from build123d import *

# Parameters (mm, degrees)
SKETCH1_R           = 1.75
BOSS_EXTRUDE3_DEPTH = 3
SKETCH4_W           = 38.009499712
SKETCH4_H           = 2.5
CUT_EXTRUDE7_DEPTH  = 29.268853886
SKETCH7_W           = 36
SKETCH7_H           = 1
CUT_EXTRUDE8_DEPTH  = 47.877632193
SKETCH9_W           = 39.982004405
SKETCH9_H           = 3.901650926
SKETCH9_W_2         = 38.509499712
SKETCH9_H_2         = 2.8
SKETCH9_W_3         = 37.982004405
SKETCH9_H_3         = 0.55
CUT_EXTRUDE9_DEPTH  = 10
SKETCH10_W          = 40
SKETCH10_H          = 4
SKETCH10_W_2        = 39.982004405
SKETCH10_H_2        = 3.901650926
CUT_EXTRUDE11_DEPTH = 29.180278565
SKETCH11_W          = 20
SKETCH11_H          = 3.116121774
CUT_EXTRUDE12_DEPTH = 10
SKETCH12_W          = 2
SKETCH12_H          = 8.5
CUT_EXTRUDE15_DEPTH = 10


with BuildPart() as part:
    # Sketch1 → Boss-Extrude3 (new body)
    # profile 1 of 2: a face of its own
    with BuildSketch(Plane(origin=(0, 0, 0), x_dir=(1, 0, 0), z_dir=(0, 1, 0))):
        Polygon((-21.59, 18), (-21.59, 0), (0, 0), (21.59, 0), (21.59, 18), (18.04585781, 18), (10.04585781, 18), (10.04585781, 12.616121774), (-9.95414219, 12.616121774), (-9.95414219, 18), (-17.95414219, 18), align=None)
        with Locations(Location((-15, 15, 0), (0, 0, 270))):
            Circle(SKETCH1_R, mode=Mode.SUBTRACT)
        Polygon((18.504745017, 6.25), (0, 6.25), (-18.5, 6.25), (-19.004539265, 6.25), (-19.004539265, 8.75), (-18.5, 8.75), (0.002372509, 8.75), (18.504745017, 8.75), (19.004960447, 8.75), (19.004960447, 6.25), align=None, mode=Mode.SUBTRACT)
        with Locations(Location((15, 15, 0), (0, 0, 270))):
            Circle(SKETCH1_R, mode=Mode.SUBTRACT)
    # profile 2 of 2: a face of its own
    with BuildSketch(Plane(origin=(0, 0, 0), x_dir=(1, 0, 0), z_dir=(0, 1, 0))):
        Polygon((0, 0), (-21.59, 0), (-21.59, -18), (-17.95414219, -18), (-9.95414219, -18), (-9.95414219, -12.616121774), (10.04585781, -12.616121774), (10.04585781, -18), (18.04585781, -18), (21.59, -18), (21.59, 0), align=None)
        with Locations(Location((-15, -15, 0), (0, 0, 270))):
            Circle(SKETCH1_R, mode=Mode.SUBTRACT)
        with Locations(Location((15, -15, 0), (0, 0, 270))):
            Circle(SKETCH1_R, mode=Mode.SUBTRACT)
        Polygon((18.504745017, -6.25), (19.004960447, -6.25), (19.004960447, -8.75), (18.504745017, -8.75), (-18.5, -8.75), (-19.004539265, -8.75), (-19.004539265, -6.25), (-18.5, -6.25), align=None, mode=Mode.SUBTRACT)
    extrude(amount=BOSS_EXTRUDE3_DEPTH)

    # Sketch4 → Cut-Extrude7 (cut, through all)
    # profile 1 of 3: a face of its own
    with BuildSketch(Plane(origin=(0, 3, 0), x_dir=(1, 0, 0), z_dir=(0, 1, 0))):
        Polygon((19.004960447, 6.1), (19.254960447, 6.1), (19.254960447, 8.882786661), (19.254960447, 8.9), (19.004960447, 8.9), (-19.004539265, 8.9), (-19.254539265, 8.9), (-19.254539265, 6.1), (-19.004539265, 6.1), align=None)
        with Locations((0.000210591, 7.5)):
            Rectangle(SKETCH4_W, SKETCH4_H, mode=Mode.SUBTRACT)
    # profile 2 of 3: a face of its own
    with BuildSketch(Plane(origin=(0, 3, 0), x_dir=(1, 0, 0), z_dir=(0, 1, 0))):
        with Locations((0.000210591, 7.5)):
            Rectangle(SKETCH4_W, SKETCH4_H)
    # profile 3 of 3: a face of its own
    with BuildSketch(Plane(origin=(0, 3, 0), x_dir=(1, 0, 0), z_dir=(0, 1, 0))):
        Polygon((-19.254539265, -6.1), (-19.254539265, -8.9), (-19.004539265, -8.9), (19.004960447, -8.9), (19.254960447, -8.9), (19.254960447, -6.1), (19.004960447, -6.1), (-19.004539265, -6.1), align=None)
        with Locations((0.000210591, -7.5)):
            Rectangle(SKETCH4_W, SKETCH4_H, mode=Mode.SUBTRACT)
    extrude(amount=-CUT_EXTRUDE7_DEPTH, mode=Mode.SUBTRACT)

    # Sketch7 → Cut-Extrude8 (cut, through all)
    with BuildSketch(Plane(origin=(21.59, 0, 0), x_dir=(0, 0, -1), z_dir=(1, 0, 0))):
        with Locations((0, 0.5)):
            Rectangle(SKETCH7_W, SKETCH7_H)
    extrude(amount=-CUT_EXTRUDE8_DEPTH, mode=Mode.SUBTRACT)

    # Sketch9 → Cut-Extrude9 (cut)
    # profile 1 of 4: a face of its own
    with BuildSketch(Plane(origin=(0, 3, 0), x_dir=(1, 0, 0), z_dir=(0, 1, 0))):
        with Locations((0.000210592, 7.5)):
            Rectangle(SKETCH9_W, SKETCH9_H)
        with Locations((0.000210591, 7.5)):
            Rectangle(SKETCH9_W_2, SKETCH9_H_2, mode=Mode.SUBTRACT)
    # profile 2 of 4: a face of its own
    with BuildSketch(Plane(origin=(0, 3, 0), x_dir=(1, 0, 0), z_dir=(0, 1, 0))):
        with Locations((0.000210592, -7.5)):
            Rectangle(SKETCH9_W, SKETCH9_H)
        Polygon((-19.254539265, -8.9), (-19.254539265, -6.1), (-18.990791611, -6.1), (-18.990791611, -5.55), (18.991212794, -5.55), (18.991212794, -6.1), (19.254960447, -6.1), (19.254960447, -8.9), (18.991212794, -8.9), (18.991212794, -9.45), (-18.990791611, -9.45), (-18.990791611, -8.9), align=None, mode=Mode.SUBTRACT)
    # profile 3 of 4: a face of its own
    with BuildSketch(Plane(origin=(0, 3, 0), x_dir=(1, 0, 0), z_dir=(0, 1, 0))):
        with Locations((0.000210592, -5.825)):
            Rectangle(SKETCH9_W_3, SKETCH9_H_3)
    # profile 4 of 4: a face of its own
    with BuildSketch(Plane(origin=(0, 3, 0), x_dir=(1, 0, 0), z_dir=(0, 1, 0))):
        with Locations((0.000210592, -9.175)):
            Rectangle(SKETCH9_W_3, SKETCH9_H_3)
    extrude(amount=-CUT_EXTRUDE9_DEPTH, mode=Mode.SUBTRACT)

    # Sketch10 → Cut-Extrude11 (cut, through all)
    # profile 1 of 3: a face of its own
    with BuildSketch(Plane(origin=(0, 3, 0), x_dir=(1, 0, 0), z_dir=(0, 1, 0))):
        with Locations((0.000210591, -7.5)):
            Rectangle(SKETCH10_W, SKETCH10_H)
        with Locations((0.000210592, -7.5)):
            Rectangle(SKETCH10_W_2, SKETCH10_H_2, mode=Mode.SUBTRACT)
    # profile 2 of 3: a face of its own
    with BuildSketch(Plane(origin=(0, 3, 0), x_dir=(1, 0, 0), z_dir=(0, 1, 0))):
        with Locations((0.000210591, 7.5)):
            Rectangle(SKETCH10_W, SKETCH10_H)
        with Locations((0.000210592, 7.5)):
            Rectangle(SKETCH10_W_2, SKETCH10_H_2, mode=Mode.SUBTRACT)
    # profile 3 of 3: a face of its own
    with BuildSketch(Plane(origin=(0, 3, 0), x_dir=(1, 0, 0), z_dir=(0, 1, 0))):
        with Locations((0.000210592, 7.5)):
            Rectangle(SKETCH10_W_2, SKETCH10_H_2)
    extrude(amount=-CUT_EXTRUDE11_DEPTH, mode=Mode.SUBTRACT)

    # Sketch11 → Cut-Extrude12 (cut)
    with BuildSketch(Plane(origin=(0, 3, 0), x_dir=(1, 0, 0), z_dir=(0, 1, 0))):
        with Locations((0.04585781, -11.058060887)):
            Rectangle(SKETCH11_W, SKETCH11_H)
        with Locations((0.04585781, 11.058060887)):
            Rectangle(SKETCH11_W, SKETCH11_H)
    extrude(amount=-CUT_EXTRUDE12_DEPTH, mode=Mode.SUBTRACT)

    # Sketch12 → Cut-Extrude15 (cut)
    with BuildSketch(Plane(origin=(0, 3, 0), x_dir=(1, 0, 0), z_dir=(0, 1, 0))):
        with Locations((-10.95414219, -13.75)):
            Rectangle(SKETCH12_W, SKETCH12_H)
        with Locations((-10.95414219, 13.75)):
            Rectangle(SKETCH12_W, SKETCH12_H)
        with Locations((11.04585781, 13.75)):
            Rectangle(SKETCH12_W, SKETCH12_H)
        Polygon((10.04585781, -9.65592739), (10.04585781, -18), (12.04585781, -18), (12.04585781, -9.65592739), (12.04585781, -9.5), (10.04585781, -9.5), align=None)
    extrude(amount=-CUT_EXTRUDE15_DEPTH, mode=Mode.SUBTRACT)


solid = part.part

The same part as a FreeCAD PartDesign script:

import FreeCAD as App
import Part
import Sketcher

doc = App.newDocument("Part")
params = doc.addObject("Spreadsheet::Sheet", "Params")
for row, (alias, value) in enumerate([
    ("sketch1_diameter", "3.5 mm"),
    ("sketch1_width", "20 mm"),
    ("sketch1_height", "36 mm"),
    ("sketch1_height2", "2.5 mm"),
    ("pad1_length", "3 mm"),
    ("sketch2_height", "2.8 mm"),
    ("sketch2_height2", "2.5 mm"),
    ("pocket1_length", "29.268854 mm"),
    ("sketch3_width", "1 mm"),
    ("sketch3_height", "36 mm"),
    ("sketch4_height", "2.8 mm"),
    ("pocket3_length", "10 mm"),
    ("sketch5_width", "40 mm"),
    ("sketch5_height", "4 mm"),
    ("pocket4_length", "29.180279 mm"),
    ("sketch6_width", "20 mm"),
    ("pocket5_length", "10 mm"),
    ("sketch7_width", "2 mm"),
    ("sketch7_height", "8.5 mm"),
    ("pocket6_length", "10 mm"),
], start=1):
    params.set(f"A{row}", alias)
    params.set(f"B{row}", "=" + value)
    params.setAlias(f"B{row}", alias)

body = doc.addObject("PartDesign::Body", "Body")

# Sketch on XZ plane
sketch1 = body.newObject("Sketcher::SketchObject", "Sketch")
sketch1.AttachmentSupport = (doc.getObject("XZ_Plane"), [""])
sketch1.MapMode = "FlatFace"
sketch1.addGeometry(Part.LineSegment(App.Vector(-21.59, -18, 0), App.Vector(-21.59, 18, 0)), False)
sketch1.addGeometry(Part.LineSegment(App.Vector(-21.59, 18, 0), App.Vector(-9.954142, 18, 0)), False)
sketch1.addGeometry(Part.LineSegment(App.Vector(-9.954142, 18, 0), App.Vector(-9.954142, 12.616122, 0)), False)
sketch1.addGeometry(Part.LineSegment(App.Vector(-9.954142, 12.616122, 0), App.Vector(10.045858, 12.616122, 0)), False)
sketch1.addGeometry(Part.LineSegment(App.Vector(10.045858, 12.616122, 0), App.Vector(10.045858, 18, 0)), False)
sketch1.addGeometry(Part.LineSegment(App.Vector(10.045858, 18, 0), App.Vector(21.59, 18, 0)), False)
sketch1.addGeometry(Part.LineSegment(App.Vector(21.59, 18, 0), App.Vector(21.59, -18, 0)), False)
sketch1.addGeometry(Part.LineSegment(App.Vector(21.59, -18, 0), App.Vector(10.045858, -18, 0)), False)
sketch1.addGeometry(Part.LineSegment(App.Vector(10.045858, -18, 0), App.Vector(10.045858, -12.616122, 0)), False)
sketch1.addGeometry(Part.LineSegment(App.Vector(10.045858, -12.616122, 0), App.Vector(-9.954142, -12.616122, 0)), False)
sketch1.addGeometry(Part.LineSegment(App.Vector(-9.954142, -12.616122, 0), App.Vector(-9.954142, -18, 0)), False)
sketch1.addGeometry(Part.LineSegment(App.Vector(-9.954142, -18, 0), App.Vector(-21.59, -18, 0)), False)
sketch1.addGeometry(Part.LineSegment(App.Vector(19.00496, -6.25, 0), App.Vector(-19.004539, -6.25, 0)), False)
sketch1.addGeometry(Part.LineSegment(App.Vector(-19.004539, -6.25, 0), App.Vector(-19.004539, -8.75, 0)), False)
sketch1.addGeometry(Part.LineSegment(App.Vector(-19.004539, -8.75, 0), App.Vector(19.00496, -8.75, 0)), False)
sketch1.addGeometry(Part.LineSegment(App.Vector(19.00496, -8.75, 0), App.Vector(19.00496, -6.25, 0)), False)
sketch1.addGeometry(Part.Circle(App.Vector(-15, -15, 0), App.Vector(0, 0, 1), 1.75), False)
sketch1.addGeometry(Part.Circle(App.Vector(15, -15, 0), App.Vector(0, 0, 1), 1.75), False)
sketch1.addGeometry(Part.LineSegment(App.Vector(-19.004539, 8.75, 0), App.Vector(-19.004539, 6.25, 0)), False)
sketch1.addGeometry(Part.LineSegment(App.Vector(-19.004539, 6.25, 0), App.Vector(19.00496, 6.25, 0)), False)
sketch1.addGeometry(Part.LineSegment(App.Vector(19.00496, 6.25, 0), App.Vector(19.00496, 8.75, 0)), False)
sketch1.addGeometry(Part.LineSegment(App.Vector(19.00496, 8.75, 0), App.Vector(-19.004539, 8.75, 0)), False)
sketch1.addGeometry(Part.Circle(App.Vector(-15, 15, 0), App.Vector(0, 0, 1), 1.75), False)
sketch1.addGeometry(Part.Circle(App.Vector(15, 15, 0), App.Vector(0, 0, 1), 1.75), False)
sketch1.addConstraint(Sketcher.Constraint("Coincident", 0, 2, 1, 1))
sketch1.addConstraint(Sketcher.Constraint("Coincident", 1, 2, 2, 1))
sketch1.addConstraint(Sketcher.Constraint("Coincident", 2, 2, 3, 1))
sketch1.addConstraint(Sketcher.Constraint("Coincident", 3, 2, 4, 1))
sketch1.addConstraint(Sketcher.Constraint("Coincident", 4, 2, 5, 1))
sketch1.addConstraint(Sketcher.Constraint("Coincident", 5, 2, 6, 1))
sketch1.addConstraint(Sketcher.Constraint("Coincident", 6, 2, 7, 1))
sketch1.addConstraint(Sketcher.Constraint("Coincident", 7, 2, 8, 1))
sketch1.addConstraint(Sketcher.Constraint("Coincident", 8, 2, 9, 1))
sketch1.addConstraint(Sketcher.Constraint("Coincident", 9, 2, 10, 1))
sketch1.addConstraint(Sketcher.Constraint("Coincident", 10, 2, 11, 1))
sketch1.addConstraint(Sketcher.Constraint("Coincident", 11, 2, 0, 1))
sketch1.addConstraint(Sketcher.Constraint("Coincident", 12, 2, 13, 1))
sketch1.addConstraint(Sketcher.Constraint("Coincident", 13, 2, 14, 1))
sketch1.addConstraint(Sketcher.Constraint("Coincident", 14, 2, 15, 1))
sketch1.addConstraint(Sketcher.Constraint("Coincident", 15, 2, 12, 1))
sketch1.addConstraint(Sketcher.Constraint("Coincident", 18, 2, 19, 1))
sketch1.addConstraint(Sketcher.Constraint("Coincident", 19, 2, 20, 1))
sketch1.addConstraint(Sketcher.Constraint("Coincident", 20, 2, 21, 1))
sketch1.addConstraint(Sketcher.Constraint("Coincident", 21, 2, 18, 1))
sketch1.addConstraint(Sketcher.Constraint("Vertical", 0))
sketch1.addConstraint(Sketcher.Constraint("Horizontal", 1))
sketch1.addConstraint(Sketcher.Constraint("Vertical", 2))
sketch1.addConstraint(Sketcher.Constraint("Horizontal", 3))
sketch1.addConstraint(Sketcher.Constraint("Vertical", 4))
sketch1.addConstraint(Sketcher.Constraint("Horizontal", 5))
sketch1.addConstraint(Sketcher.Constraint("Vertical", 6))
sketch1.addConstraint(Sketcher.Constraint("Horizontal", 7))
sketch1.addConstraint(Sketcher.Constraint("Vertical", 8))
sketch1.addConstraint(Sketcher.Constraint("Horizontal", 9))
sketch1.addConstraint(Sketcher.Constraint("Vertical", 10))
sketch1.addConstraint(Sketcher.Constraint("Horizontal", 11))
sketch1.addConstraint(Sketcher.Constraint("Horizontal", 12))
sketch1.addConstraint(Sketcher.Constraint("Vertical", 13))
sketch1.addConstraint(Sketcher.Constraint("Horizontal", 14))
sketch1.addConstraint(Sketcher.Constraint("Vertical", 15))
sketch1.addConstraint(Sketcher.Constraint("Vertical", 18))
sketch1.addConstraint(Sketcher.Constraint("Horizontal", 19))
sketch1.addConstraint(Sketcher.Constraint("Vertical", 20))
sketch1.addConstraint(Sketcher.Constraint("Horizontal", 21))
sketch1.addConstraint(Sketcher.Constraint("Equal", 16, 17))
sketch1.addConstraint(Sketcher.Constraint("Equal", 17, 22))
sketch1.addConstraint(Sketcher.Constraint("Equal", 22, 23))
sketch1.addConstraint(Sketcher.Constraint("Symmetric", 17, 3, 22, 3, -1, 1))
sketch1.addConstraint(Sketcher.Constraint("Symmetric", 16, 3, 23, 3, -1, 1))
sketch1.addConstraint(Sketcher.Constraint("Symmetric", 0, 2, 6, 2, -1, 1))
sketch1.addConstraint(Sketcher.Constraint("Symmetric", 16, 3, 17, 3, -2))
sketch1.addConstraint(Sketcher.Constraint("Symmetric", 4, 2, 7, 2, -1))
sketch1.addConstraint(Sketcher.Constraint("Symmetric", 2, 2, 9, 2, -1))
sketch1.addConstraint(Sketcher.Constraint("Symmetric", 12, 2, 18, 2, -1))
sketch1.addConstraint(Sketcher.Constraint("Symmetric", 14, 2, 20, 2, -1))
sketch1.addConstraint(Sketcher.Constraint("Horizontal", 7, 2, 10, 2))
sketch1.addConstraint(Sketcher.Constraint("Diameter", 16, 3.5))
sketch1.addConstraint(Sketcher.Constraint("DistanceX", 3, 1, 3, 2, 20.0))
sketch1.addConstraint(Sketcher.Constraint("DistanceY", 0, 1, 0, 2, 36.0))
sketch1.addConstraint(Sketcher.Constraint("DistanceY", 13, 2, 13, 1, 2.5))
sketch1.addConstraint(Sketcher.Constraint("DistanceX", 16, 3, -1, 1, 15.0))
sketch1.addConstraint(Sketcher.Constraint("DistanceY", 16, 3, -1, 1, 15.0))
sketch1.addConstraint(Sketcher.Constraint("DistanceY", 12, 2, 18, 2, 12.5))
sketch1.addConstraint(Sketcher.Constraint("DistanceX", 0, 2, -1, 1, 21.59))
sketch1.addConstraint(Sketcher.Constraint("DistanceX", 12, 2, 12, 1, 38.0095))
sketch1.addConstraint(Sketcher.Constraint("DistanceY", 2, 2, 2, 1, 5.383878))
sketch1.addConstraint(Sketcher.Constraint("DistanceX", 1, 1, 1, 2, 11.635858))
sketch1.addConstraint(Sketcher.Constraint("DistanceX", 12, 2, -1, 1, 19.004539))
sketch1.setExpression("Constraints[52]", "Params.sketch1_diameter")
sketch1.setExpression("Constraints[53]", "Params.sketch1_width")
sketch1.setExpression("Constraints[54]", "Params.sketch1_height")
sketch1.setExpression("Constraints[55]", "Params.sketch1_height2")
pad1 = body.newObject("PartDesign::Pad", "Pad")
pad1.Profile = sketch1
pad1.setExpression("Length", "Params.pad1_length")
pad1.Reversed = True

# Sketch on XZ plane
sketch2 = body.newObject("Sketcher::SketchObject", "Sketch001")
sketch2.AttachmentSupport = (doc.getObject("XZ_Plane"), [""])
sketch2.MapMode = "FlatFace"
sketch2.AttachmentOffset = App.Placement(App.Vector(0, 0, -3), App.Rotation())
sketch2.addGeometry(Part.LineSegment(App.Vector(19.25496, -6.1, 0), App.Vector(19.25496, -8.9, 0)), False)
sketch2.addGeometry(Part.LineSegment(App.Vector(19.25496, -8.9, 0), App.Vector(-19.254539, -8.9, 0)), False)
sketch2.addGeometry(Part.LineSegment(App.Vector(-19.254539, -8.9, 0), App.Vector(-19.254539, -6.1, 0)), False)
sketch2.addGeometry(Part.LineSegment(App.Vector(-19.254539, -6.1, 0), App.Vector(19.25496, -6.1, 0)), False)
sketch2.addGeometry(Part.LineSegment(App.Vector(-19.254539, 6.1, 0), App.Vector(-19.254539, 8.9, 0)), False)
sketch2.addGeometry(Part.LineSegment(App.Vector(-19.254539, 8.9, 0), App.Vector(19.25496, 8.9, 0)), False)
sketch2.addGeometry(Part.LineSegment(App.Vector(19.25496, 8.9, 0), App.Vector(19.25496, 6.1, 0)), False)
sketch2.addGeometry(Part.LineSegment(App.Vector(19.25496, 6.1, 0), App.Vector(-19.254539, 6.1, 0)), False)
sketch2.addGeometry(Part.LineSegment(App.Vector(19.00496, 8.75, 0), App.Vector(-19.004539, 8.75, 0)), False)
sketch2.addGeometry(Part.LineSegment(App.Vector(-19.004539, 8.75, 0), App.Vector(-19.004539, 6.25, 0)), False)
sketch2.addGeometry(Part.LineSegment(App.Vector(-19.004539, 6.25, 0), App.Vector(19.00496, 6.25, 0)), False)
sketch2.addGeometry(Part.LineSegment(App.Vector(19.00496, 6.25, 0), App.Vector(19.00496, 8.75, 0)), False)
sketch2.addConstraint(Sketcher.Constraint("Coincident", 0, 2, 1, 1))
sketch2.addConstraint(Sketcher.Constraint("Coincident", 1, 2, 2, 1))
sketch2.addConstraint(Sketcher.Constraint("Coincident", 2, 2, 3, 1))
sketch2.addConstraint(Sketcher.Constraint("Coincident", 3, 2, 0, 1))
sketch2.addConstraint(Sketcher.Constraint("Coincident", 4, 2, 5, 1))
sketch2.addConstraint(Sketcher.Constraint("Coincident", 5, 2, 6, 1))
sketch2.addConstraint(Sketcher.Constraint("Coincident", 6, 2, 7, 1))
sketch2.addConstraint(Sketcher.Constraint("Coincident", 7, 2, 4, 1))
sketch2.addConstraint(Sketcher.Constraint("Coincident", 8, 2, 9, 1))
sketch2.addConstraint(Sketcher.Constraint("Coincident", 9, 2, 10, 1))
sketch2.addConstraint(Sketcher.Constraint("Coincident", 10, 2, 11, 1))
sketch2.addConstraint(Sketcher.Constraint("Coincident", 11, 2, 8, 1))
sketch2.addConstraint(Sketcher.Constraint("Vertical", 0))
sketch2.addConstraint(Sketcher.Constraint("Horizontal", 1))
sketch2.addConstraint(Sketcher.Constraint("Vertical", 2))
sketch2.addConstraint(Sketcher.Constraint("Horizontal", 3))
sketch2.addConstraint(Sketcher.Constraint("Vertical", 4))
sketch2.addConstraint(Sketcher.Constraint("Horizontal", 5))
sketch2.addConstraint(Sketcher.Constraint("Vertical", 6))
sketch2.addConstraint(Sketcher.Constraint("Horizontal", 7))
sketch2.addConstraint(Sketcher.Constraint("Horizontal", 8))
sketch2.addConstraint(Sketcher.Constraint("Vertical", 9))
sketch2.addConstraint(Sketcher.Constraint("Horizontal", 10))
sketch2.addConstraint(Sketcher.Constraint("Vertical", 11))
sketch2.addConstraint(Sketcher.Constraint("Symmetric", 1, 2, 4, 2, -1))
sketch2.addConstraint(Sketcher.Constraint("Symmetric", 3, 2, 6, 2, -1))
sketch2.addConstraint(Sketcher.Constraint("DistanceY", 0, 2, 0, 1, 2.8))
sketch2.addConstraint(Sketcher.Constraint("DistanceY", 9, 2, 9, 1, 2.5))
sketch2.addConstraint(Sketcher.Constraint("DistanceY", 2, 2, 4, 2, 15.0))
sketch2.addConstraint(Sketcher.Constraint("DistanceY", -1, 1, 8, 2, 8.75))
sketch2.addConstraint(Sketcher.Constraint("DistanceX", 4, 2, 8, 2, 0.25))
sketch2.addConstraint(Sketcher.Constraint("DistanceX", 10, 2, 6, 2, 0.25))
sketch2.addConstraint(Sketcher.Constraint("DistanceX", 1, 2, 1, 1, 38.5095))
sketch2.addConstraint(Sketcher.Constraint("DistanceX", -1, 1, 0, 2, 19.25496))
sketch2.setExpression("Constraints[26]", "Params.sketch2_height")
sketch2.setExpression("Constraints[27]", "Params.sketch2_height2")
pocket1 = body.newObject("PartDesign::Pocket", "Pocket")
pocket1.Profile = sketch2
pocket1.setExpression("Length", "Params.pocket1_length")
pocket1.Reversed = True

# Sketch on YZ plane
sketch3 = body.newObject("Sketcher::SketchObject", "Sketch002")
sketch3.AttachmentSupport = (doc.getObject("YZ_Plane"), [""])
sketch3.MapMode = "FlatFace"
sketch3.AttachmentOffset = App.Placement(App.Vector(0, 0, 21.59), App.Rotation())
sketch3.addGeometry(Part.LineSegment(App.Vector(1, 18, 0), App.Vector(0, 18, 0)), False)
sketch3.addGeometry(Part.LineSegment(App.Vector(0, 18, 0), App.Vector(0, -18, 0)), False)
sketch3.addGeometry(Part.LineSegment(App.Vector(0, -18, 0), App.Vector(1, -18, 0)), False)
sketch3.addGeometry(Part.LineSegment(App.Vector(1, -18, 0), App.Vector(1, 18, 0)), False)
sketch3.addConstraint(Sketcher.Constraint("Coincident", 0, 2, 1, 1))
sketch3.addConstraint(Sketcher.Constraint("Coincident", 1, 2, 2, 1))
sketch3.addConstraint(Sketcher.Constraint("Coincident", 2, 2, 3, 1))
sketch3.addConstraint(Sketcher.Constraint("Coincident", 3, 2, 0, 1))
sketch3.addConstraint(Sketcher.Constraint("Horizontal", 0))
sketch3.addConstraint(Sketcher.Constraint("Vertical", 1))
sketch3.addConstraint(Sketcher.Constraint("Horizontal", 2))
sketch3.addConstraint(Sketcher.Constraint("Vertical", 3))
sketch3.addConstraint(Sketcher.Constraint("Symmetric", 0, 2, 1, 2, -1, 1))
sketch3.addConstraint(Sketcher.Constraint("DistanceX", 0, 2, 0, 1, 1.0))
sketch3.addConstraint(Sketcher.Constraint("DistanceY", 1, 2, 1, 1, 36.0))
sketch3.setExpression("Constraints[9]", "Params.sketch3_width")
sketch3.setExpression("Constraints[10]", "Params.sketch3_height")
pocket2 = body.newObject("PartDesign::Pocket", "Pocket001")
pocket2.Profile = sketch3
pocket2.Type = "ThroughAll"

# Sketch on XZ plane
sketch4 = body.newObject("Sketcher::SketchObject", "Sketch003")
sketch4.AttachmentSupport = (doc.getObject("XZ_Plane"), [""])
sketch4.MapMode = "FlatFace"
sketch4.AttachmentOffset = App.Placement(App.Vector(0, 0, -3), App.Rotation())
sketch4.addGeometry(Part.LineSegment(App.Vector(-19.990792, -9.450825, 0), App.Vector(-19.990792, -5.549175, 0)), False)
sketch4.addGeometry(Part.LineSegment(App.Vector(-19.990792, -5.549175, 0), App.Vector(19.991213, -5.549175, 0)), False)
sketch4.addGeometry(Part.LineSegment(App.Vector(19.991213, -5.549175, 0), App.Vector(19.991213, -9.450825, 0)), False)
sketch4.addGeometry(Part.LineSegment(App.Vector(19.991213, -9.450825, 0), App.Vector(-19.990792, -9.450825, 0)), False)
sketch4.addGeometry(Part.LineSegment(App.Vector(19.25496, -6.1, 0), App.Vector(-19.254539, -6.1, 0)), False)
sketch4.addGeometry(Part.LineSegment(App.Vector(-19.254539, -6.1, 0), App.Vector(-19.254539, -8.9, 0)), False)
sketch4.addGeometry(Part.LineSegment(App.Vector(-19.254539, -8.9, 0), App.Vector(19.25496, -8.9, 0)), False)
sketch4.addGeometry(Part.LineSegment(App.Vector(19.25496, -8.9, 0), App.Vector(19.25496, -6.1, 0)), False)
sketch4.addGeometry(Part.LineSegment(App.Vector(-19.990792, 5.549175, 0), App.Vector(-19.990792, 9.450825, 0)), False)
sketch4.addGeometry(Part.LineSegment(App.Vector(-19.990792, 9.450825, 0), App.Vector(19.991213, 9.450825, 0)), False)
sketch4.addGeometry(Part.LineSegment(App.Vector(19.991213, 9.450825, 0), App.Vector(19.991213, 5.549175, 0)), False)
sketch4.addGeometry(Part.LineSegment(App.Vector(19.991213, 5.549175, 0), App.Vector(-19.990792, 5.549175, 0)), False)
sketch4.addGeometry(Part.LineSegment(App.Vector(-19.254539, 8.9, 0), App.Vector(-19.254539, 6.1, 0)), False)
sketch4.addGeometry(Part.LineSegment(App.Vector(-19.254539, 6.1, 0), App.Vector(19.25496, 6.1, 0)), False)
sketch4.addGeometry(Part.LineSegment(App.Vector(19.25496, 6.1, 0), App.Vector(19.25496, 8.9, 0)), False)
sketch4.addGeometry(Part.LineSegment(App.Vector(19.25496, 8.9, 0), App.Vector(-19.254539, 8.9, 0)), False)
sketch4.addConstraint(Sketcher.Constraint("Coincident", 0, 2, 1, 1))
sketch4.addConstraint(Sketcher.Constraint("Coincident", 1, 2, 2, 1))
sketch4.addConstraint(Sketcher.Constraint("Coincident", 2, 2, 3, 1))
sketch4.addConstraint(Sketcher.Constraint("Coincident", 3, 2, 0, 1))
sketch4.addConstraint(Sketcher.Constraint("Coincident", 4, 2, 5, 1))
sketch4.addConstraint(Sketcher.Constraint("Coincident", 5, 2, 6, 1))
sketch4.addConstraint(Sketcher.Constraint("Coincident", 6, 2, 7, 1))
sketch4.addConstraint(Sketcher.Constraint("Coincident", 7, 2, 4, 1))
sketch4.addConstraint(Sketcher.Constraint("Coincident", 8, 2, 9, 1))
sketch4.addConstraint(Sketcher.Constraint("Coincident", 9, 2, 10, 1))
sketch4.addConstraint(Sketcher.Constraint("Coincident", 10, 2, 11, 1))
sketch4.addConstraint(Sketcher.Constraint("Coincident", 11, 2, 8, 1))
sketch4.addConstraint(Sketcher.Constraint("Coincident", 12, 2, 13, 1))
sketch4.addConstraint(Sketcher.Constraint("Coincident", 13, 2, 14, 1))
sketch4.addConstraint(Sketcher.Constraint("Coincident", 14, 2, 15, 1))
sketch4.addConstraint(Sketcher.Constraint("Coincident", 15, 2, 12, 1))
sketch4.addConstraint(Sketcher.Constraint("Vertical", 0))
sketch4.addConstraint(Sketcher.Constraint("Horizontal", 1))
sketch4.addConstraint(Sketcher.Constraint("Vertical", 2))
sketch4.addConstraint(Sketcher.Constraint("Horizontal", 3))
sketch4.addConstraint(Sketcher.Constraint("Horizontal", 4))
sketch4.addConstraint(Sketcher.Constraint("Vertical", 5))
sketch4.addConstraint(Sketcher.Constraint("Horizontal", 6))
sketch4.addConstraint(Sketcher.Constraint("Vertical", 7))
sketch4.addConstraint(Sketcher.Constraint("Vertical", 8))
sketch4.addConstraint(Sketcher.Constraint("Horizontal", 9))
sketch4.addConstraint(Sketcher.Constraint("Vertical", 10))
sketch4.addConstraint(Sketcher.Constraint("Horizontal", 11))
sketch4.addConstraint(Sketcher.Constraint("Vertical", 12))
sketch4.addConstraint(Sketcher.Constraint("Horizontal", 13))
sketch4.addConstraint(Sketcher.Constraint("Vertical", 14))
sketch4.addConstraint(Sketcher.Constraint("Horizontal", 15))
sketch4.addConstraint(Sketcher.Constraint("Symmetric", 3, 2, 8, 2, -1))
sketch4.addConstraint(Sketcher.Constraint("Symmetric", 1, 2, 10, 2, -1))
sketch4.addConstraint(Sketcher.Constraint("Symmetric", 4, 2, 12, 2, -1))
sketch4.addConstraint(Sketcher.Constraint("Symmetric", 6, 2, 14, 2, -1))
sketch4.addConstraint(Sketcher.Constraint("DistanceY", 5, 2, 5, 1, 2.8))
sketch4.addConstraint(Sketcher.Constraint("DistanceY", 0, 2, 8, 2, 15.0))
sketch4.addConstraint(Sketcher.Constraint("DistanceY", 5, 2, 12, 2, 15.0))
sketch4.addConstraint(Sketcher.Constraint("DistanceX", 4, 2, 4, 1, 38.5095))
sketch4.addConstraint(Sketcher.Constraint("DistanceY", 0, 1, 0, 2, 3.901651))
sketch4.addConstraint(Sketcher.Constraint("DistanceX", 1, 1, 1, 2, 39.982004))
sketch4.addConstraint(Sketcher.Constraint("DistanceX", 0, 2, -1, 1, 19.990792))
sketch4.addConstraint(Sketcher.Constraint("DistanceX", 4, 2, -1, 1, 19.254539))
sketch4.setExpression("Constraints[36]", "Params.sketch4_height")
pocket3 = body.newObject("PartDesign::Pocket", "Pocket002")
pocket3.Profile = sketch4
pocket3.setExpression("Length", "Params.pocket3_length")
pocket3.Reversed = True

# Sketch on XZ plane
sketch5 = body.newObject("Sketcher::SketchObject", "Sketch004")
sketch5.AttachmentSupport = (doc.getObject("XZ_Plane"), [""])
sketch5.MapMode = "FlatFace"
sketch5.AttachmentOffset = App.Placement(App.Vector(0, 0, -3), App.Rotation())
sketch5.addGeometry(Part.LineSegment(App.Vector(-19.999789, 5.5, 0), App.Vector(-19.999789, 9.5, 0)), False)
sketch5.addGeometry(Part.LineSegment(App.Vector(-19.999789, 9.5, 0), App.Vector(20.000211, 9.5, 0)), False)
sketch5.addGeometry(Part.LineSegment(App.Vector(20.000211, 9.5, 0), App.Vector(20.000211, 5.5, 0)), False)
sketch5.addGeometry(Part.LineSegment(App.Vector(20.000211, 5.5, 0), App.Vector(-19.999789, 5.5, 0)), False)
sketch5.addGeometry(Part.LineSegment(App.Vector(19.991213, 9.450825, 0), App.Vector(-19.990792, 9.450825, 0)), False)
sketch5.addGeometry(Part.LineSegment(App.Vector(-19.990792, 9.450825, 0), App.Vector(-19.990792, 5.549175, 0)), False)
sketch5.addGeometry(Part.LineSegment(App.Vector(-19.990792, 5.549175, 0), App.Vector(19.991213, 5.549175, 0)), False)
sketch5.addGeometry(Part.LineSegment(App.Vector(19.991213, 5.549175, 0), App.Vector(19.991213, 9.450825, 0)), False)
sketch5.addGeometry(Part.LineSegment(App.Vector(-19.999789, -9.5, 0), App.Vector(-19.999789, -5.5, 0)), False)
sketch5.addGeometry(Part.LineSegment(App.Vector(-19.999789, -5.5, 0), App.Vector(20.000211, -5.5, 0)), False)
sketch5.addGeometry(Part.LineSegment(App.Vector(20.000211, -5.5, 0), App.Vector(20.000211, -9.5, 0)), False)
sketch5.addGeometry(Part.LineSegment(App.Vector(20.000211, -9.5, 0), App.Vector(-19.999789, -9.5, 0)), False)
sketch5.addConstraint(Sketcher.Constraint("Coincident", 0, 2, 1, 1))
sketch5.addConstraint(Sketcher.Constraint("Coincident", 1, 2, 2, 1))
sketch5.addConstraint(Sketcher.Constraint("Coincident", 2, 2, 3, 1))
sketch5.addConstraint(Sketcher.Constraint("Coincident", 3, 2, 0, 1))
sketch5.addConstraint(Sketcher.Constraint("Coincident", 4, 2, 5, 1))
sketch5.addConstraint(Sketcher.Constraint("Coincident", 5, 2, 6, 1))
sketch5.addConstraint(Sketcher.Constraint("Coincident", 6, 2, 7, 1))
sketch5.addConstraint(Sketcher.Constraint("Coincident", 7, 2, 4, 1))
sketch5.addConstraint(Sketcher.Constraint("Coincident", 8, 2, 9, 1))
sketch5.addConstraint(Sketcher.Constraint("Coincident", 9, 2, 10, 1))
sketch5.addConstraint(Sketcher.Constraint("Coincident", 10, 2, 11, 1))
sketch5.addConstraint(Sketcher.Constraint("Coincident", 11, 2, 8, 1))
sketch5.addConstraint(Sketcher.Constraint("Vertical", 0))
sketch5.addConstraint(Sketcher.Constraint("Horizontal", 1))
sketch5.addConstraint(Sketcher.Constraint("Vertical", 2))
sketch5.addConstraint(Sketcher.Constraint("Horizontal", 3))
sketch5.addConstraint(Sketcher.Constraint("Horizontal", 4))
sketch5.addConstraint(Sketcher.Constraint("Vertical", 5))
sketch5.addConstraint(Sketcher.Constraint("Horizontal", 6))
sketch5.addConstraint(Sketcher.Constraint("Vertical", 7))
sketch5.addConstraint(Sketcher.Constraint("Vertical", 8))
sketch5.addConstraint(Sketcher.Constraint("Horizontal", 9))
sketch5.addConstraint(Sketcher.Constraint("Vertical", 10))
sketch5.addConstraint(Sketcher.Constraint("Horizontal", 11))
sketch5.addConstraint(Sketcher.Constraint("Symmetric", 3, 2, 8, 2, -1))
sketch5.addConstraint(Sketcher.Constraint("Symmetric", 1, 2, 10, 2, -1))
sketch5.addConstraint(Sketcher.Constraint("DistanceX", 1, 1, 1, 2, 40.0))
sketch5.addConstraint(Sketcher.Constraint("DistanceY", 0, 1, 0, 2, 4.0))
sketch5.addConstraint(Sketcher.Constraint("DistanceY", 8, 2, 3, 2, 11.0))
sketch5.addConstraint(Sketcher.Constraint("DistanceY", 5, 2, 5, 1, 3.901651))
sketch5.addConstraint(Sketcher.Constraint("DistanceX", 4, 2, 4, 1, 39.982004))
sketch5.addConstraint(Sketcher.Constraint("DistanceX", 0, 2, -1, 1, 19.999789))
sketch5.addConstraint(Sketcher.Constraint("DistanceX", 4, 2, -1, 1, 19.990792))
sketch5.addConstraint(Sketcher.Constraint("DistanceY", -1, 1, 4, 2, 9.450825))
sketch5.setExpression("Constraints[26]", "Params.sketch5_width")
sketch5.setExpression("Constraints[27]", "Params.sketch5_height")
pocket4 = body.newObject("PartDesign::Pocket", "Pocket003")
pocket4.Profile = sketch5
pocket4.setExpression("Length", "Params.pocket4_length")
pocket4.Reversed = True

# Sketch on XZ plane
sketch6 = body.newObject("Sketcher::SketchObject", "Sketch005")
sketch6.AttachmentSupport = (doc.getObject("XZ_Plane"), [""])
sketch6.MapMode = "FlatFace"
sketch6.AttachmentOffset = App.Placement(App.Vector(0, 0, -3), App.Rotation())
sketch6.addGeometry(Part.LineSegment(App.Vector(-9.954142, 9.5, 0), App.Vector(-9.954142, 12.616122, 0)), False)
sketch6.addGeometry(Part.LineSegment(App.Vector(-9.954142, 12.616122, 0), App.Vector(10.045858, 12.616122, 0)), False)
sketch6.addGeometry(Part.LineSegment(App.Vector(10.045858, 12.616122, 0), App.Vector(10.045858, 9.5, 0)), False)
sketch6.addGeometry(Part.LineSegment(App.Vector(10.045858, 9.5, 0), App.Vector(-9.954142, 9.5, 0)), False)
sketch6.addGeometry(Part.LineSegment(App.Vector(-9.954142, -12.616122, 0), App.Vector(-9.954142, -9.5, 0)), False)
sketch6.addGeometry(Part.LineSegment(App.Vector(-9.954142, -9.5, 0), App.Vector(10.045858, -9.5, 0)), False)
sketch6.addGeometry(Part.LineSegment(App.Vector(10.045858, -9.5, 0), App.Vector(10.045858, -12.616122, 0)), False)
sketch6.addGeometry(Part.LineSegment(App.Vector(10.045858, -12.616122, 0), App.Vector(-9.954142, -12.616122, 0)), False)
sketch6.addConstraint(Sketcher.Constraint("Coincident", 0, 2, 1, 1))
sketch6.addConstraint(Sketcher.Constraint("Coincident", 1, 2, 2, 1))
sketch6.addConstraint(Sketcher.Constraint("Coincident", 2, 2, 3, 1))
sketch6.addConstraint(Sketcher.Constraint("Coincident", 3, 2, 0, 1))
sketch6.addConstraint(Sketcher.Constraint("Coincident", 4, 2, 5, 1))
sketch6.addConstraint(Sketcher.Constraint("Coincident", 5, 2, 6, 1))
sketch6.addConstraint(Sketcher.Constraint("Coincident", 6, 2, 7, 1))
sketch6.addConstraint(Sketcher.Constraint("Coincident", 7, 2, 4, 1))
sketch6.addConstraint(Sketcher.Constraint("Vertical", 0))
sketch6.addConstraint(Sketcher.Constraint("Horizontal", 1))
sketch6.addConstraint(Sketcher.Constraint("Vertical", 2))
sketch6.addConstraint(Sketcher.Constraint("Horizontal", 3))
sketch6.addConstraint(Sketcher.Constraint("Vertical", 4))
sketch6.addConstraint(Sketcher.Constraint("Horizontal", 5))
sketch6.addConstraint(Sketcher.Constraint("Vertical", 6))
sketch6.addConstraint(Sketcher.Constraint("Horizontal", 7))
sketch6.addConstraint(Sketcher.Constraint("Symmetric", 3, 2, 4, 2, -1))
sketch6.addConstraint(Sketcher.Constraint("Symmetric", 1, 2, 6, 2, -1))
sketch6.addConstraint(Sketcher.Constraint("DistanceX", 1, 1, 1, 2, 20.0))
sketch6.addConstraint(Sketcher.Constraint("DistanceY", 4, 2, 3, 2, 19.0))
sketch6.addConstraint(Sketcher.Constraint("DistanceY", 0, 1, 0, 2, 3.116122))
sketch6.addConstraint(Sketcher.Constraint("DistanceX", 0, 2, -1, 1, 9.954142))
sketch6.setExpression("Constraints[18]", "Params.sketch6_width")
pocket5 = body.newObject("PartDesign::Pocket", "Pocket004")
pocket5.Profile = sketch6
pocket5.setExpression("Length", "Params.pocket5_length")
pocket5.Reversed = True

# Sketch on XZ plane
sketch7 = body.newObject("Sketcher::SketchObject", "Sketch006")
sketch7.AttachmentSupport = (doc.getObject("XZ_Plane"), [""])
sketch7.MapMode = "FlatFace"
sketch7.AttachmentOffset = App.Placement(App.Vector(0, 0, -3), App.Rotation())
sketch7.addGeometry(Part.LineSegment(App.Vector(-11.954142, 9.5, 0), App.Vector(-11.954142, 18, 0)), False)
sketch7.addGeometry(Part.LineSegment(App.Vector(-11.954142, 18, 0), App.Vector(-9.954142, 18, 0)), False)
sketch7.addGeometry(Part.LineSegment(App.Vector(-9.954142, 18, 0), App.Vector(-9.954142, 9.5, 0)), False)
sketch7.addGeometry(Part.LineSegment(App.Vector(-9.954142, 9.5, 0), App.Vector(-11.954142, 9.5, 0)), False)
sketch7.addGeometry(Part.LineSegment(App.Vector(-11.954142, -18, 0), App.Vector(-11.954142, -9.5, 0)), False)
sketch7.addGeometry(Part.LineSegment(App.Vector(-11.954142, -9.5, 0), App.Vector(-9.954142, -9.5, 0)), False)
sketch7.addGeometry(Part.LineSegment(App.Vector(-9.954142, -9.5, 0), App.Vector(-9.954142, -18, 0)), False)
sketch7.addGeometry(Part.LineSegment(App.Vector(-9.954142, -18, 0), App.Vector(-11.954142, -18, 0)), False)
sketch7.addGeometry(Part.LineSegment(App.Vector(10.045858, -18, 0), App.Vector(10.045858, -9.5, 0)), False)
sketch7.addGeometry(Part.LineSegment(App.Vector(10.045858, -9.5, 0), App.Vector(12.045858, -9.5, 0)), False)
sketch7.addGeometry(Part.LineSegment(App.Vector(12.045858, -9.5, 0), App.Vector(12.045858, -18, 0)), False)
sketch7.addGeometry(Part.LineSegment(App.Vector(12.045858, -18, 0), App.Vector(10.045858, -18, 0)), False)
sketch7.addGeometry(Part.LineSegment(App.Vector(10.045858, 18, 0), App.Vector(12.045858, 18, 0)), False)
sketch7.addGeometry(Part.LineSegment(App.Vector(12.045858, 18, 0), App.Vector(12.045858, 9.5, 0)), False)
sketch7.addGeometry(Part.LineSegment(App.Vector(12.045858, 9.5, 0), App.Vector(10.045858, 9.5, 0)), False)
sketch7.addGeometry(Part.LineSegment(App.Vector(10.045858, 9.5, 0), App.Vector(10.045858, 18, 0)), False)
sketch7.addConstraint(Sketcher.Constraint("Coincident", 0, 2, 1, 1))
sketch7.addConstraint(Sketcher.Constraint("Coincident", 1, 2, 2, 1))
sketch7.addConstraint(Sketcher.Constraint("Coincident", 2, 2, 3, 1))
sketch7.addConstraint(Sketcher.Constraint("Coincident", 3, 2, 0, 1))
sketch7.addConstraint(Sketcher.Constraint("Coincident", 4, 2, 5, 1))
sketch7.addConstraint(Sketcher.Constraint("Coincident", 5, 2, 6, 1))
sketch7.addConstraint(Sketcher.Constraint("Coincident", 6, 2, 7, 1))
sketch7.addConstraint(Sketcher.Constraint("Coincident", 7, 2, 4, 1))
sketch7.addConstraint(Sketcher.Constraint("Coincident", 8, 2, 9, 1))
sketch7.addConstraint(Sketcher.Constraint("Coincident", 9, 2, 10, 1))
sketch7.addConstraint(Sketcher.Constraint("Coincident", 10, 2, 11, 1))
sketch7.addConstraint(Sketcher.Constraint("Coincident", 11, 2, 8, 1))
sketch7.addConstraint(Sketcher.Constraint("Coincident", 12, 2, 13, 1))
sketch7.addConstraint(Sketcher.Constraint("Coincident", 13, 2, 14, 1))
sketch7.addConstraint(Sketcher.Constraint("Coincident", 14, 2, 15, 1))
sketch7.addConstraint(Sketcher.Constraint("Coincident", 15, 2, 12, 1))
sketch7.addConstraint(Sketcher.Constraint("Vertical", 0))
sketch7.addConstraint(Sketcher.Constraint("Horizontal", 1))
sketch7.addConstraint(Sketcher.Constraint("Vertical", 2))
sketch7.addConstraint(Sketcher.Constraint("Horizontal", 3))
sketch7.addConstraint(Sketcher.Constraint("Vertical", 4))
sketch7.addConstraint(Sketcher.Constraint("Horizontal", 5))
sketch7.addConstraint(Sketcher.Constraint("Vertical", 6))
sketch7.addConstraint(Sketcher.Constraint("Horizontal", 7))
sketch7.addConstraint(Sketcher.Constraint("Vertical", 8))
sketch7.addConstraint(Sketcher.Constraint("Horizontal", 9))
sketch7.addConstraint(Sketcher.Constraint("Vertical", 10))
sketch7.addConstraint(Sketcher.Constraint("Horizontal", 11))
sketch7.addConstraint(Sketcher.Constraint("Horizontal", 12))
sketch7.addConstraint(Sketcher.Constraint("Vertical", 13))
sketch7.addConstraint(Sketcher.Constraint("Horizontal", 14))
sketch7.addConstraint(Sketcher.Constraint("Vertical", 15))
sketch7.addConstraint(Sketcher.Constraint("Symmetric", 3, 2, 4, 2, -1))
sketch7.addConstraint(Sketcher.Constraint("Symmetric", 1, 2, 6, 2, -1))
sketch7.addConstraint(Sketcher.Constraint("Symmetric", 10, 2, 12, 2, -1))
sketch7.addConstraint(Sketcher.Constraint("Symmetric", 8, 2, 14, 2, -1))
sketch7.addConstraint(Sketcher.Constraint("Horizontal", 5, 2, 8, 2))
sketch7.addConstraint(Sketcher.Constraint("Horizontal", 7, 2, 10, 2))
sketch7.addConstraint(Sketcher.Constraint("Equal", 7, 9))
sketch7.addConstraint(Sketcher.Constraint("DistanceX", 1, 1, 1, 2, 2.0))
sketch7.addConstraint(Sketcher.Constraint("DistanceY", 0, 1, 0, 2, 8.5))
sketch7.addConstraint(Sketcher.Constraint("DistanceY", -1, 1, 0, 2, 18.0))
sketch7.addConstraint(Sketcher.Constraint("DistanceX", 5, 2, 8, 2, 20.0))
sketch7.addConstraint(Sketcher.Constraint("DistanceX", 0, 2, -1, 1, 11.954142))
sketch7.setExpression("Constraints[39]", "Params.sketch7_width")
sketch7.setExpression("Constraints[40]", "Params.sketch7_height")
pocket6 = body.newObject("PartDesign::Pocket", "Pocket005")
pocket6.Profile = sketch7
pocket6.setExpression("Length", "Params.pocket6_length")
pocket6.Reversed = True

doc.recompute()
